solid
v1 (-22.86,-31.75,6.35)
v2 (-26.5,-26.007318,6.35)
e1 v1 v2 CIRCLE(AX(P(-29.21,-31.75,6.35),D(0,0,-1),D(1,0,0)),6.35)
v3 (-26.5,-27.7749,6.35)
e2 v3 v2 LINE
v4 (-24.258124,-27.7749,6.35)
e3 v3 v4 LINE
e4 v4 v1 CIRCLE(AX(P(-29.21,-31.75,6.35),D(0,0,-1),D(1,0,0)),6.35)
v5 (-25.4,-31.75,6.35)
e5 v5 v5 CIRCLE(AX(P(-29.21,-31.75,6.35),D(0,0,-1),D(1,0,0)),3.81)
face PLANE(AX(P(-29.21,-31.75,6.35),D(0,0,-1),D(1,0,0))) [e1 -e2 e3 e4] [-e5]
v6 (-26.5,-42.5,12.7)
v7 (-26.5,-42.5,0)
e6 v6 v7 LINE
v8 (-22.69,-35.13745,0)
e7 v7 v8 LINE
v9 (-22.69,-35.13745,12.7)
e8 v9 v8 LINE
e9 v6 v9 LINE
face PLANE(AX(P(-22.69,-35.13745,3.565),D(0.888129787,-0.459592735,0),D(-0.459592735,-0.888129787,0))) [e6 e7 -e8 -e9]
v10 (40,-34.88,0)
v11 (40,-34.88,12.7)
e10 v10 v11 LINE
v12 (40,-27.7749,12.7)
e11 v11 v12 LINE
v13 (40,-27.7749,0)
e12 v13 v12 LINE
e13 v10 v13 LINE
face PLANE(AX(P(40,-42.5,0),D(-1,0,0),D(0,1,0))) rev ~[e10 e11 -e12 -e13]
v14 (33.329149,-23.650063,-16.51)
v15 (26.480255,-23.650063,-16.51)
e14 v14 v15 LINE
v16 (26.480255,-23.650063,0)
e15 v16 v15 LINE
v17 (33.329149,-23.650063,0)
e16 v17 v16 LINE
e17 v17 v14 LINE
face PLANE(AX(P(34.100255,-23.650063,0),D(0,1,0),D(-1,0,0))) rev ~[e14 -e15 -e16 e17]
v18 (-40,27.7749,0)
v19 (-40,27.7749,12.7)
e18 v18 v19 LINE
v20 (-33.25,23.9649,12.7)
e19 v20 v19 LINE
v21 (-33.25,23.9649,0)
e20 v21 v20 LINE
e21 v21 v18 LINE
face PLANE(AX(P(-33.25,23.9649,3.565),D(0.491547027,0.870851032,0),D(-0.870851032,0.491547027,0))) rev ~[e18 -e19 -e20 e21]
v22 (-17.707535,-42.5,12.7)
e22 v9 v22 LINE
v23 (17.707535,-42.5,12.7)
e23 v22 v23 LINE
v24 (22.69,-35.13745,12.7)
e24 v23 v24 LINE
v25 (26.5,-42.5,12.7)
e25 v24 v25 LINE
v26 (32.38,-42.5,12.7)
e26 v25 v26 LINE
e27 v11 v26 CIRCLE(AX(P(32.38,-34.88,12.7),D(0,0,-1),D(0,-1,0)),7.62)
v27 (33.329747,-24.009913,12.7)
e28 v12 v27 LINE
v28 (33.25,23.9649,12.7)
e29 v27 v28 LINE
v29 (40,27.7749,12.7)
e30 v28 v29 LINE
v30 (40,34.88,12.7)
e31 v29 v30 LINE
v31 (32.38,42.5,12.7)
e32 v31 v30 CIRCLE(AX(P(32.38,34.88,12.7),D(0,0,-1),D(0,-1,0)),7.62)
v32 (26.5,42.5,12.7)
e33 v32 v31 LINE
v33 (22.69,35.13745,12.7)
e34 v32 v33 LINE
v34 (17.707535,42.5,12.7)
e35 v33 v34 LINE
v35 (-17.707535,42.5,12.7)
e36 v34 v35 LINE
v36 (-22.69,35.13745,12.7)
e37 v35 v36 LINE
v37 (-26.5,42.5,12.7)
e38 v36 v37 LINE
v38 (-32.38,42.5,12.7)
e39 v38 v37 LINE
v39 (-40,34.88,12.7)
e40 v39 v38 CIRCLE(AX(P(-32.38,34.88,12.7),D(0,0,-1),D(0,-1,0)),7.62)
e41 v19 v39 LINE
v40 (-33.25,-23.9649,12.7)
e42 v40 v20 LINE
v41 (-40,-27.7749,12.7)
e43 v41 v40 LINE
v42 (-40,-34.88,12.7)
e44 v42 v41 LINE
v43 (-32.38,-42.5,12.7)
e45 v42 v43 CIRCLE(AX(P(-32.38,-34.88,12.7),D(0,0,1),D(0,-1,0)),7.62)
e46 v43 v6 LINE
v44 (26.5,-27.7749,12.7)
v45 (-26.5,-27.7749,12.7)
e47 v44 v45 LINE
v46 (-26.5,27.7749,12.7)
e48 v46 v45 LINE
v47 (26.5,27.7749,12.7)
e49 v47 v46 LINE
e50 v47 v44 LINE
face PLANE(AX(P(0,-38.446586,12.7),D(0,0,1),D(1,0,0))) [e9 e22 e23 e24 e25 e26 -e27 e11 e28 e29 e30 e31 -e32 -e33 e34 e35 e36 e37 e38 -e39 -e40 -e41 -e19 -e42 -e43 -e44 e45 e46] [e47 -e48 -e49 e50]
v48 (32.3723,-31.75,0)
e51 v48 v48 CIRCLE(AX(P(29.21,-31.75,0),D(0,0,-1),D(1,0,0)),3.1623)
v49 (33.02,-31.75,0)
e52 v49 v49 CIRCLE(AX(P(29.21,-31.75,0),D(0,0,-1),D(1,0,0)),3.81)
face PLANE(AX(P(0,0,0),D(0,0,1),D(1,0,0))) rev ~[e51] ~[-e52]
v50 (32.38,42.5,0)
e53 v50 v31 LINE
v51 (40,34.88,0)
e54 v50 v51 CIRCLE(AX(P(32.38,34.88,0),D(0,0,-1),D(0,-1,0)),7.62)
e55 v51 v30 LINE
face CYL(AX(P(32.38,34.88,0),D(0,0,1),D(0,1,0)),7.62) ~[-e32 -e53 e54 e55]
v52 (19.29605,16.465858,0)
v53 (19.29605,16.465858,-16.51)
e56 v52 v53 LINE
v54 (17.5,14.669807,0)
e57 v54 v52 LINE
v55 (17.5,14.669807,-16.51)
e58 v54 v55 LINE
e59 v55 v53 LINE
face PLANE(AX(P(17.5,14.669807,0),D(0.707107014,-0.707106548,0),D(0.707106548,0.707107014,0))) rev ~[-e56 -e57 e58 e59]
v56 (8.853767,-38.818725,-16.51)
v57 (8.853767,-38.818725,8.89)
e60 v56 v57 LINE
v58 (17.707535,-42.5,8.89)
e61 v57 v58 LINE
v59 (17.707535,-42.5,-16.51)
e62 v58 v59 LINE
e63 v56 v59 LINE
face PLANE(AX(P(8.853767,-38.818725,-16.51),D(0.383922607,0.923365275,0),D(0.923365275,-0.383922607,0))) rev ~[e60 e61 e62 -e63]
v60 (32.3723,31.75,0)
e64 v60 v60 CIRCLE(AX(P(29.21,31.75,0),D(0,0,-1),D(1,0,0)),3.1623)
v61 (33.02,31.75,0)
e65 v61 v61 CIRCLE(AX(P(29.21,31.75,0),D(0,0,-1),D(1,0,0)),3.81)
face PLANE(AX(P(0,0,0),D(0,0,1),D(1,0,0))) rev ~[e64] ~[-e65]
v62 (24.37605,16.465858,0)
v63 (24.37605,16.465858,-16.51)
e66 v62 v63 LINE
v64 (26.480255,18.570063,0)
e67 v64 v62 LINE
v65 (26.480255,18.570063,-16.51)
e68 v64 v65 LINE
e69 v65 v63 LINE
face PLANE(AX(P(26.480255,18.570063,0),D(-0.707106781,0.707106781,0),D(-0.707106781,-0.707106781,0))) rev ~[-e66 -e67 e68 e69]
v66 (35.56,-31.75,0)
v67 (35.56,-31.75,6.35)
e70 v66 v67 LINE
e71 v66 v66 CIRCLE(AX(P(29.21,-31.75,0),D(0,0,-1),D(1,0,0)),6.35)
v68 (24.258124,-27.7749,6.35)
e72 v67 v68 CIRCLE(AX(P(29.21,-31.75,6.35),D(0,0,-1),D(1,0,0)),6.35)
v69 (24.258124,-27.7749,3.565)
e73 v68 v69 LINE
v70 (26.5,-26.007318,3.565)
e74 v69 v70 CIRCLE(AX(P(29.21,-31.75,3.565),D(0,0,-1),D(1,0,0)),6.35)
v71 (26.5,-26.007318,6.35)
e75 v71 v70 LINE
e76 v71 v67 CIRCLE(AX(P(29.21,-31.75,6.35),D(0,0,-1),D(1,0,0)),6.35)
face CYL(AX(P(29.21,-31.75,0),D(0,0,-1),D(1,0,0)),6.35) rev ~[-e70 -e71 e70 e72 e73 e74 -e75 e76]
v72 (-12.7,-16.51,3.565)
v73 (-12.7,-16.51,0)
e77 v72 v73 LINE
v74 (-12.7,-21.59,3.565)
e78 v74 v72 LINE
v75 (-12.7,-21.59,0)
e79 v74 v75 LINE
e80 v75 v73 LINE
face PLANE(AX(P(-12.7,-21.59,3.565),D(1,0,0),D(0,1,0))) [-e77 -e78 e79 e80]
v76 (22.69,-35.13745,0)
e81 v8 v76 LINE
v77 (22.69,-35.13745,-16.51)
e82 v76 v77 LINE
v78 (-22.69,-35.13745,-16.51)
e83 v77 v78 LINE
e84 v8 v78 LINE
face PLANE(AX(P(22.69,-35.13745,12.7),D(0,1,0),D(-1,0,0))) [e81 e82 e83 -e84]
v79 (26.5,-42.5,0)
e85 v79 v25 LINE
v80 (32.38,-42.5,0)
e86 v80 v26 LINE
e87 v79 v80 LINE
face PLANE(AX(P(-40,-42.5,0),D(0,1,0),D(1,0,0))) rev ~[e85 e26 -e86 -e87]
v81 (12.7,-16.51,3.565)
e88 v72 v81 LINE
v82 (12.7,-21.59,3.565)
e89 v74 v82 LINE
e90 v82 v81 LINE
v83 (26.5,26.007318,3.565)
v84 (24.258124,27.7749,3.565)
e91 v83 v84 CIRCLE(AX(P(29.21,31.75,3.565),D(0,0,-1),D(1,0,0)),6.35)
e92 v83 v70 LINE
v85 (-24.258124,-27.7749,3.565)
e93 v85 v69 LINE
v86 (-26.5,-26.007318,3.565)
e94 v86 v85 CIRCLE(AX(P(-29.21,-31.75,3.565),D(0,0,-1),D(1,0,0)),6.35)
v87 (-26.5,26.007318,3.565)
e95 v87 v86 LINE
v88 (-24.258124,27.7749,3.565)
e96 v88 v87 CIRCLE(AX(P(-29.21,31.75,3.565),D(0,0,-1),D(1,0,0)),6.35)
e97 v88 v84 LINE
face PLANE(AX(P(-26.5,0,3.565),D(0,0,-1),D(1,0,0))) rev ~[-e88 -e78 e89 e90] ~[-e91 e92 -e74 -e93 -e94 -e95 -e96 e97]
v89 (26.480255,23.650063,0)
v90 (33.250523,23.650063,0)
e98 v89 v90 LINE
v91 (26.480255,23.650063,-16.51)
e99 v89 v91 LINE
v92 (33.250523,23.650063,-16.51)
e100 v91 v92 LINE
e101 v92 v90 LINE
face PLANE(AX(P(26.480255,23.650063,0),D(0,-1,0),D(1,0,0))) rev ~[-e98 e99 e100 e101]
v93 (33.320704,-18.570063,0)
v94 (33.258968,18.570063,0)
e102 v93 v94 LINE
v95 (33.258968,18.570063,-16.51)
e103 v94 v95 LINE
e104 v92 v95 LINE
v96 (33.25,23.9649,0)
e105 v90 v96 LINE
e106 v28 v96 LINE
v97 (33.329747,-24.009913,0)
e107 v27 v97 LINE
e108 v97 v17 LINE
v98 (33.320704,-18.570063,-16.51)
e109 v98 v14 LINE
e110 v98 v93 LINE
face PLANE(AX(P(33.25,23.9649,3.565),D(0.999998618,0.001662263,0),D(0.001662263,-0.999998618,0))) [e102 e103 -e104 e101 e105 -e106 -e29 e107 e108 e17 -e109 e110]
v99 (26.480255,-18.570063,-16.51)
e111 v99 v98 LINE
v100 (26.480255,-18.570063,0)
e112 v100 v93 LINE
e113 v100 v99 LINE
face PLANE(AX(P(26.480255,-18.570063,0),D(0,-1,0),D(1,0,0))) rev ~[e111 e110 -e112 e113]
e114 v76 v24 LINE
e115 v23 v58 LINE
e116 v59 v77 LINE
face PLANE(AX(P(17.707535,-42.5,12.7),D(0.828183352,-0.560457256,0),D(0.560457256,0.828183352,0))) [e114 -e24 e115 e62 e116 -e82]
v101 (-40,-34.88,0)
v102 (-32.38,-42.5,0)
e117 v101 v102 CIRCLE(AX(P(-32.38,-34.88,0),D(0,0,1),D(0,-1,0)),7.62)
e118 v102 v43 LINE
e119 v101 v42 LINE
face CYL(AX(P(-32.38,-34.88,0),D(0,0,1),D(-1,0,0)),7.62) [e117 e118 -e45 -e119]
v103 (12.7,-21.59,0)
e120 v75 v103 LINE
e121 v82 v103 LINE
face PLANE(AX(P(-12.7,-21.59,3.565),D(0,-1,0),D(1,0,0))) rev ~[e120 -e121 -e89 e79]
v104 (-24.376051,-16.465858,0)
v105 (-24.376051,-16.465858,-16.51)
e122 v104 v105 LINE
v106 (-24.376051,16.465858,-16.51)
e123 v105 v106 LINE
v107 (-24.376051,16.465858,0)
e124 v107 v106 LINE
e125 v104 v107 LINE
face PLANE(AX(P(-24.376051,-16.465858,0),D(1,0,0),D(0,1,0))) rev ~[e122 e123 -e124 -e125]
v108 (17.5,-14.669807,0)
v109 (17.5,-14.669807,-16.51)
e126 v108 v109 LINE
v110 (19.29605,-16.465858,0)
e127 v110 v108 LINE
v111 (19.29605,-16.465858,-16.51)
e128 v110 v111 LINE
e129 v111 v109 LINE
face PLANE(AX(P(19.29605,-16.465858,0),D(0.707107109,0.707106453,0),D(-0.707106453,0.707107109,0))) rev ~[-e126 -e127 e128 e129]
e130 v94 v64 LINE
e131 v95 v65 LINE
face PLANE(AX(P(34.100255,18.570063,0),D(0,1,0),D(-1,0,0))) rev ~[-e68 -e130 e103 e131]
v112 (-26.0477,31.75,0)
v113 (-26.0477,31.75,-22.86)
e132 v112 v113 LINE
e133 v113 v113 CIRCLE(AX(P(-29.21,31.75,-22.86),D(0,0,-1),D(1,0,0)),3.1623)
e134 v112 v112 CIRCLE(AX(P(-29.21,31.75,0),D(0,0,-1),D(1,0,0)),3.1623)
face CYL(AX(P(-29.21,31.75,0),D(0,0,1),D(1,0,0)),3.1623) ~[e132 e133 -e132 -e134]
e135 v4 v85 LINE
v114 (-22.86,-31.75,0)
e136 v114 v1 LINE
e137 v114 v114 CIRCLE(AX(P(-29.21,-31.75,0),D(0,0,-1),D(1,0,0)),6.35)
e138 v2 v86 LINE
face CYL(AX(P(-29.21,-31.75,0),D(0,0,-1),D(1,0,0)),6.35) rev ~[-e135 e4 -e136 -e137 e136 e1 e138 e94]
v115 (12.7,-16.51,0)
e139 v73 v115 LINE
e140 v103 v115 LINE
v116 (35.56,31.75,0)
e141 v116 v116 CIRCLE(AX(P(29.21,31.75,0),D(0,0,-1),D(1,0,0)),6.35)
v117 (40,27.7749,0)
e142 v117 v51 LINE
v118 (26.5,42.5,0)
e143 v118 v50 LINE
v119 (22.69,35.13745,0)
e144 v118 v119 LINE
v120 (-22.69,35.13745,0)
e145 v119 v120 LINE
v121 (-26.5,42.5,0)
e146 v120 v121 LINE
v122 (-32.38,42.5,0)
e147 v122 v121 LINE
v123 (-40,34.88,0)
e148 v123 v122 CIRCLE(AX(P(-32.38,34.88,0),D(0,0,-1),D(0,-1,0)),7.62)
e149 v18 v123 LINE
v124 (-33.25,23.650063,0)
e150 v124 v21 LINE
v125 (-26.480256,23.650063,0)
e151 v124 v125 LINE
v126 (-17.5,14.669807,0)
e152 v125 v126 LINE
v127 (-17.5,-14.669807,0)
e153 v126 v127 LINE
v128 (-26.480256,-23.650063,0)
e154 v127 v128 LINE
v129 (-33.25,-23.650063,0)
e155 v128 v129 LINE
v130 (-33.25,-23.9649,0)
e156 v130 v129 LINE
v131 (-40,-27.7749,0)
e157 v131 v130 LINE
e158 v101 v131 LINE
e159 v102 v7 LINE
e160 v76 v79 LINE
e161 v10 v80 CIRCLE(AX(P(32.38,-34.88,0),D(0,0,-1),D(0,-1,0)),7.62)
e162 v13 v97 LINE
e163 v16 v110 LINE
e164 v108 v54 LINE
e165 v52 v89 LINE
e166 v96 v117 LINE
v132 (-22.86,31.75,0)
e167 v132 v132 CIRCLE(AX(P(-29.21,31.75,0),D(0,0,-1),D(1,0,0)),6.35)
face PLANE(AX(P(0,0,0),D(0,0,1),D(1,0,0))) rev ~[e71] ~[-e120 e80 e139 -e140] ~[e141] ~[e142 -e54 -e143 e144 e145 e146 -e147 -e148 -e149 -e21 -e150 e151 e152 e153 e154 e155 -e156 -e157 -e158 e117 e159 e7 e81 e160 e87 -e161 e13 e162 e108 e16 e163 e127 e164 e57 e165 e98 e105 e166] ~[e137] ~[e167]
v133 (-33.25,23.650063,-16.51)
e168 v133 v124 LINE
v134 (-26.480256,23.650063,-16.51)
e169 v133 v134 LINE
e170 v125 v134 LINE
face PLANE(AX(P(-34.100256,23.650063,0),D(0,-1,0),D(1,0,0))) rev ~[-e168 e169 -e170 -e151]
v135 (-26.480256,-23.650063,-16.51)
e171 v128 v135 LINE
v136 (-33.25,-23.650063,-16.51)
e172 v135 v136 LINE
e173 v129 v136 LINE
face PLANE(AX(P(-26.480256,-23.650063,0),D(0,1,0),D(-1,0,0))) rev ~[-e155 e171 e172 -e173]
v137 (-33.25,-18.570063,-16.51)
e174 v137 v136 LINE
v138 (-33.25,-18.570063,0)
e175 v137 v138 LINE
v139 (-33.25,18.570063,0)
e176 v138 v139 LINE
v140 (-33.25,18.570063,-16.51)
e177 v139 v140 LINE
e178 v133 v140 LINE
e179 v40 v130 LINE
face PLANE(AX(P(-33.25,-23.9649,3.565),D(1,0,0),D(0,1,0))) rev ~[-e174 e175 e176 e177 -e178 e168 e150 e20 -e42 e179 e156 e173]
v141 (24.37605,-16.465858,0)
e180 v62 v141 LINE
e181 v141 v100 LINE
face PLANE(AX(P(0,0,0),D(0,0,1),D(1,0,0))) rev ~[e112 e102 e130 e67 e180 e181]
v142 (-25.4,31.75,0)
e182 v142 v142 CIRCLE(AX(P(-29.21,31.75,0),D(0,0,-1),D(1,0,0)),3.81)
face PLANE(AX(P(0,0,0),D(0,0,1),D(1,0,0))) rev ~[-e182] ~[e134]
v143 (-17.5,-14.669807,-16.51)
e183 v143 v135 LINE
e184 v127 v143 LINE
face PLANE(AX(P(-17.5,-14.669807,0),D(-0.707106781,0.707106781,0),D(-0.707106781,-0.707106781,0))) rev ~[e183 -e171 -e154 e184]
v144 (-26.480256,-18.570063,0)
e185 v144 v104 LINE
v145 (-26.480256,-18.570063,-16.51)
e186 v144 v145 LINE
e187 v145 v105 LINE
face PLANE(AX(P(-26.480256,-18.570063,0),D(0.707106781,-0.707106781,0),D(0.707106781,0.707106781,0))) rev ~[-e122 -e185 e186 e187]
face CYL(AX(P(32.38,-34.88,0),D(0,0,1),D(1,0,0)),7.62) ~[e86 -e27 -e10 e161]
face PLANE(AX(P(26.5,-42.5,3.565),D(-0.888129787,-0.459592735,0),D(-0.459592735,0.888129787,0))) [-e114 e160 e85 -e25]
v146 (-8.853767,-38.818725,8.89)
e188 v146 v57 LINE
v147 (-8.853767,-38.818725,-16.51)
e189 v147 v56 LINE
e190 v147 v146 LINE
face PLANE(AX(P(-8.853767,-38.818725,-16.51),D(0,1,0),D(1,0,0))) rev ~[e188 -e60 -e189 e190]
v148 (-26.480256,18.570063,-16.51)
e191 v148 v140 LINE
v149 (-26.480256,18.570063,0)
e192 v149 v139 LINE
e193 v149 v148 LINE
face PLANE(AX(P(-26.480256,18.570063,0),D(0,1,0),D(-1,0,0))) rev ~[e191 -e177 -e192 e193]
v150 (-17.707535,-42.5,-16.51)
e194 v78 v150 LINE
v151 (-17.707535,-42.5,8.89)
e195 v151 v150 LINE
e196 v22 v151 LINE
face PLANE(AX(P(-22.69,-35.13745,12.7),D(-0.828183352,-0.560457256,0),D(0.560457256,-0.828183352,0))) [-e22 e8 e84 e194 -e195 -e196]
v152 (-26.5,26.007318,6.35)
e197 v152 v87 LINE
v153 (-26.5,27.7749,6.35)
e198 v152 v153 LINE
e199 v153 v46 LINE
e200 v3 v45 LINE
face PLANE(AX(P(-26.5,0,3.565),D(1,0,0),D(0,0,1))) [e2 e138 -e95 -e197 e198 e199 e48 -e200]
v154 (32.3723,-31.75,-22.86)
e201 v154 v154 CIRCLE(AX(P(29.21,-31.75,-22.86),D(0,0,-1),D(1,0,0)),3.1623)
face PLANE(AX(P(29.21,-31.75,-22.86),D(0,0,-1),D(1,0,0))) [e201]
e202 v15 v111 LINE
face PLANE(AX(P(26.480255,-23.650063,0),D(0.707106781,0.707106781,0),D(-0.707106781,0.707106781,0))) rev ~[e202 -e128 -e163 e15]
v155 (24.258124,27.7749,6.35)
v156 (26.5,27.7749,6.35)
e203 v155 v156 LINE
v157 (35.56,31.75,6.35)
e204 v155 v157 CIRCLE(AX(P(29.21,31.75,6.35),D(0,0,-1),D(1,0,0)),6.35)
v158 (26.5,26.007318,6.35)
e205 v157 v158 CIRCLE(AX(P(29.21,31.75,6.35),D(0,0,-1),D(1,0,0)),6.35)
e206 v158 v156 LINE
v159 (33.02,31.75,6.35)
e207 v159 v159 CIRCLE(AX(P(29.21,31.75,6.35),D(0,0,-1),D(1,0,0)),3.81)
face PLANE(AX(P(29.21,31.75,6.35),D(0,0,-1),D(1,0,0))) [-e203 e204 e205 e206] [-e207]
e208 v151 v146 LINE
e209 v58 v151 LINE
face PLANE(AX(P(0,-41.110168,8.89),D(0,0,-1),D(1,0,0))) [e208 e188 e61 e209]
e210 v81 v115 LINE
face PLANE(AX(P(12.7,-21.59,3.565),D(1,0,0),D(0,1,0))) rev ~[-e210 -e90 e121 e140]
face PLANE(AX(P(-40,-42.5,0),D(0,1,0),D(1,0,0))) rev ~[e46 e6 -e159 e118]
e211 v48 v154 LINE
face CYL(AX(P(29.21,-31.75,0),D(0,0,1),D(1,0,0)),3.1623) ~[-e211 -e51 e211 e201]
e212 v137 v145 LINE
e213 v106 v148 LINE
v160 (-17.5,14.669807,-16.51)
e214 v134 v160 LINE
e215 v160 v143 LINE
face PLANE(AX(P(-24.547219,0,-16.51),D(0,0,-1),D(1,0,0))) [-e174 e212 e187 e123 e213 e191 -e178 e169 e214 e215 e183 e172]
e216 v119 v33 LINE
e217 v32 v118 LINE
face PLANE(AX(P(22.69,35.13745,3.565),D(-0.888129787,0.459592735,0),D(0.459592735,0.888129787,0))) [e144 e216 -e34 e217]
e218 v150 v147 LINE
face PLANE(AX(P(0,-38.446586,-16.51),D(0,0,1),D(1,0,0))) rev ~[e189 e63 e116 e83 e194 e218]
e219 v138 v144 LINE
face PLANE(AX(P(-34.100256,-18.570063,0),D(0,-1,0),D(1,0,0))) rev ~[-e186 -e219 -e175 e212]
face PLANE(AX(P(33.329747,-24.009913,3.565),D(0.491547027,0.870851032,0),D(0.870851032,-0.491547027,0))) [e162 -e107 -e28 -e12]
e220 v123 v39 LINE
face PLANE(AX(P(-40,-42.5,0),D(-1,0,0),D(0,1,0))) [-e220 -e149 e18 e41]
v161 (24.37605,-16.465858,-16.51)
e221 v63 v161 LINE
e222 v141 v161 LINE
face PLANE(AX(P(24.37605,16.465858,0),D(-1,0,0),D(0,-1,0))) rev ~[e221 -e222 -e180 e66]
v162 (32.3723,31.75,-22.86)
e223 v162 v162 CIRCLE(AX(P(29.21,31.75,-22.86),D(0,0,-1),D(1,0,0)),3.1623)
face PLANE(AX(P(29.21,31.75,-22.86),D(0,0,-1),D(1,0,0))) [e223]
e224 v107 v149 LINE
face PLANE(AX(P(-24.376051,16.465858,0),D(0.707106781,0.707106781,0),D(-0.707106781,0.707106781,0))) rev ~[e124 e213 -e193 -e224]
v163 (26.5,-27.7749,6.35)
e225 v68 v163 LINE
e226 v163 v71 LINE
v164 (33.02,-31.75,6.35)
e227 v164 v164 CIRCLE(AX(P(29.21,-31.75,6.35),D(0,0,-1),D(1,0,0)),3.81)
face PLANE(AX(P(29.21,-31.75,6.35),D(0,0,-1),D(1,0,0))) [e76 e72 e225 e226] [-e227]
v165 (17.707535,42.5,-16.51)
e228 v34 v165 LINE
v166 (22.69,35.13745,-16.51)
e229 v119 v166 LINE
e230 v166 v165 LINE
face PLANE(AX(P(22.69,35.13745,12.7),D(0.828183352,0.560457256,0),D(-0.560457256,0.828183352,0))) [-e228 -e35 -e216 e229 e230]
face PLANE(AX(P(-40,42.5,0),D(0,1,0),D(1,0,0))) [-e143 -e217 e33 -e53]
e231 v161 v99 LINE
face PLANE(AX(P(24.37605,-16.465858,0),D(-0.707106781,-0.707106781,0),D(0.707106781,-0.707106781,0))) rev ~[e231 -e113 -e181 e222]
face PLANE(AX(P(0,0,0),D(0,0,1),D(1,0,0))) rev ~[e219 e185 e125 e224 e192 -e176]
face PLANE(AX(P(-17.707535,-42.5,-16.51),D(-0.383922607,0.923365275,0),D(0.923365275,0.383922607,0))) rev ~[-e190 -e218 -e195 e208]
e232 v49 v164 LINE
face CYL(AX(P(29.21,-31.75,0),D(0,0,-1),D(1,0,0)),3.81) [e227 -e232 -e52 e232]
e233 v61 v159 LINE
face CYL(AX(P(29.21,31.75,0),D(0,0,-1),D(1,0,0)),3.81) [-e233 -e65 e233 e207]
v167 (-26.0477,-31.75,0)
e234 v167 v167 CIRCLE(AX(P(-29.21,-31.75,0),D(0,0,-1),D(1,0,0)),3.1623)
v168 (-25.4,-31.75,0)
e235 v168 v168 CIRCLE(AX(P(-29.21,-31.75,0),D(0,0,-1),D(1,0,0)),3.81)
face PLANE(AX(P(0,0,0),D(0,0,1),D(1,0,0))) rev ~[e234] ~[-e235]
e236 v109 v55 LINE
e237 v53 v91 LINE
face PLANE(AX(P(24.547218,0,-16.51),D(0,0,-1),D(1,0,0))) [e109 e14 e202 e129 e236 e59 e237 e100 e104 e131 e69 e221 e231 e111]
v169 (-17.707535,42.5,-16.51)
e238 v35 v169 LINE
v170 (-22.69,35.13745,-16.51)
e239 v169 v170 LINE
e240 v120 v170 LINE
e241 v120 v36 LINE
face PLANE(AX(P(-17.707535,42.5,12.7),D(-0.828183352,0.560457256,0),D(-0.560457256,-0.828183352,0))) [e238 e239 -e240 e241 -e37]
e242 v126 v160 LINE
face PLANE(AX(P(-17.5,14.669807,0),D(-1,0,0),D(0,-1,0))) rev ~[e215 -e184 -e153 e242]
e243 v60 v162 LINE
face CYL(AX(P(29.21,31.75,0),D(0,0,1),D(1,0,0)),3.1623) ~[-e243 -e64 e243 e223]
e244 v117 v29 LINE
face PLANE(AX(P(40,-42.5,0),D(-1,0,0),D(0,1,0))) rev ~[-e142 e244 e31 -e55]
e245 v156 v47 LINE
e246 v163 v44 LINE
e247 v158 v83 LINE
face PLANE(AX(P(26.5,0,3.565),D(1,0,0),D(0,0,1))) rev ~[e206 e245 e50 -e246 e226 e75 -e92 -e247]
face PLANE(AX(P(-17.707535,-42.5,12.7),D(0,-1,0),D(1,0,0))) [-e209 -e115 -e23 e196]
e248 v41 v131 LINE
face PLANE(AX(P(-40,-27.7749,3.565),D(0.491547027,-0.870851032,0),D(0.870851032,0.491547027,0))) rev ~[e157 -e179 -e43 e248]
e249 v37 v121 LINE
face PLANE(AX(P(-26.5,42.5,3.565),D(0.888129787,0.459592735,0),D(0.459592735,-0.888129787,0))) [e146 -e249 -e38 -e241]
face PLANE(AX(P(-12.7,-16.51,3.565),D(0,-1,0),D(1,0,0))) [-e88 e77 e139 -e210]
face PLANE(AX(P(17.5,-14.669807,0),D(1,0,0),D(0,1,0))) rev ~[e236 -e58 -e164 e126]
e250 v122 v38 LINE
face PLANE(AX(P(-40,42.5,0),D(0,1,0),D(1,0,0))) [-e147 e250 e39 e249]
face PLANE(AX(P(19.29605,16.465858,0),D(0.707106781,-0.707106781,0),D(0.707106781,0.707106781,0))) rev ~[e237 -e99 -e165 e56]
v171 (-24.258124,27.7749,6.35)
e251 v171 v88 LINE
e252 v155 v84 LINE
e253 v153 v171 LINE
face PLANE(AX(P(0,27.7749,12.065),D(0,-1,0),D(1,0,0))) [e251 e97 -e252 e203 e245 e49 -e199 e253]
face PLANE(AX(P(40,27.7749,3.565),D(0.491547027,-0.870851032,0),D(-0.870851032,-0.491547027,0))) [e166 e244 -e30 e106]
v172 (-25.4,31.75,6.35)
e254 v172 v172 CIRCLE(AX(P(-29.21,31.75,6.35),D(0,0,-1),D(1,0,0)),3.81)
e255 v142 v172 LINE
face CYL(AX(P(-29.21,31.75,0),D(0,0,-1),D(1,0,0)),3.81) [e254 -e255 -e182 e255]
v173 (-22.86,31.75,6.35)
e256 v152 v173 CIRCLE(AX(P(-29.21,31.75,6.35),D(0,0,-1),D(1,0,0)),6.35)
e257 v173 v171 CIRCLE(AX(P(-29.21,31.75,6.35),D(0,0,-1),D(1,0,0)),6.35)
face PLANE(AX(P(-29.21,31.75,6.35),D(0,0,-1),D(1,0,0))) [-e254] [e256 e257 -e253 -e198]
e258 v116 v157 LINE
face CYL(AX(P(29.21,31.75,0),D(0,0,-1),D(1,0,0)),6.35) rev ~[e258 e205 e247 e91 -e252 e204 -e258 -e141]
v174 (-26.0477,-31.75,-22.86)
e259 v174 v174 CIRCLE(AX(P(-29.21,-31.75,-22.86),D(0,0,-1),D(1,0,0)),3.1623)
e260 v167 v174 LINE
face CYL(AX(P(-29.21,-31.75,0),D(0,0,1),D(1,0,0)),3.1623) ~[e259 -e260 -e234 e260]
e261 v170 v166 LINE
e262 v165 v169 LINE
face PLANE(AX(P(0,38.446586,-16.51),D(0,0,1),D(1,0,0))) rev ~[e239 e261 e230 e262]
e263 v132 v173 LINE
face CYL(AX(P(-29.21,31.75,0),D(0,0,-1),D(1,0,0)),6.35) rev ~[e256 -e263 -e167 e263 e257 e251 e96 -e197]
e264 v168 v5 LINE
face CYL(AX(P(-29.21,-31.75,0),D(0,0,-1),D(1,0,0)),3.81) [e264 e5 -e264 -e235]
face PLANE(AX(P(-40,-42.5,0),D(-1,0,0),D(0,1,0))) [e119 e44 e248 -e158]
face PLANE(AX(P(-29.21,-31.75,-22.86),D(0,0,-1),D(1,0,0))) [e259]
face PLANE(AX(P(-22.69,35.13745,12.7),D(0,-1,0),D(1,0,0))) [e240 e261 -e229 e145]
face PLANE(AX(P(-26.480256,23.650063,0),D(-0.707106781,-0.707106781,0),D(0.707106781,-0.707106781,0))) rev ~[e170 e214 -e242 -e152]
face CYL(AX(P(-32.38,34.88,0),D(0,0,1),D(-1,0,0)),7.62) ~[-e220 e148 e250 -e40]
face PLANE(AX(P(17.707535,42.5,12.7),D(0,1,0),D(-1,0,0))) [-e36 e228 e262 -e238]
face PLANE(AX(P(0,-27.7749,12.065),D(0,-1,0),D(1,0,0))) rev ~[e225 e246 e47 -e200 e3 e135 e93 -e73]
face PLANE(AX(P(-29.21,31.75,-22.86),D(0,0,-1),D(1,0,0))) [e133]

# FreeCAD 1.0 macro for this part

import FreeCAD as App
import Part
import Sketcher

V = App.Vector
Q = App.Units.Quantity


def edges_at(feature, points):
    """Names of the edges that pass closest to the given points."""
    edges = feature.Shape.Edges
    near = lambda p: min(range(len(edges)), key=lambda i: edges[i].distToShape(Part.Vertex(*p))[0])
    return sorted({f"Edge{near(p) + 1}" for p in points})

doc = App.newDocument("Part")
body = doc.addObject("PartDesign::Body", "Body")

sketch1 = body.newObject("Sketcher::SketchObject", "Sketch")
sketch1.AttachmentSupport = (doc.getObject("XY_Plane"), [""])
sketch1.MapMode = "FlatFace"
sketch1.addGeometry(Part.LineSegment(V(-40, 42, 0), V(-40, -42, 0)), False)
sketch1.addGeometry(Part.LineSegment(V(-40, -42, 0), V(40, -42, 0)), False)
sketch1.addGeometry(Part.LineSegment(V(40, -42, 0), V(40, 42, 0)), False)
sketch1.addGeometry(Part.LineSegment(V(40, 42, 0), V(-40, 42, 0)), False)
sketch1.addConstraint(Sketcher.Constraint("Coincident", 0, 2, 1, 1))
sketch1.addConstraint(Sketcher.Constraint("Coincident", 1, 2, 2, 1))
sketch1.addConstraint(Sketcher.Constraint("Coincident", 2, 2, 3, 1))
sketch1.addConstraint(Sketcher.Constraint("Coincident", 3, 2, 0, 1))
sketch1.addConstraint(Sketcher.Constraint("Vertical", 0))
sketch1.addConstraint(Sketcher.Constraint("Horizontal", 1))
sketch1.addConstraint(Sketcher.Constraint("Vertical", 2))
sketch1.addConstraint(Sketcher.Constraint("Horizontal", 3))
sketch1.addConstraint(Sketcher.Constraint("Symmetric", 0, 2, 2, 2, -1, 1))
sketch1.addConstraint(Sketcher.Constraint("DistanceX", 1, 1, 1, 2, 80.0))
sketch1.addConstraint(Sketcher.Constraint("DistanceY", 0, 2, 0, 1, 85.0))
pad1 = body.newObject("PartDesign::Pad", "Pad")
pad1.Profile = sketch1
pad1.Length = Q("1 in")

sketch2 = body.newObject("Sketcher::SketchObject", "Sketch001")
sketch2.AttachmentSupport = (doc.getObject("XZ_Plane"), [""])
sketch2.MapMode = "FlatFace"
sketch2.addGeometry(Part.LineSegment(V(-26, 21, 0), V(-26, 4, 0)), False)
sketch2.addGeometry(Part.LineSegment(V(-26, 4, 0), V(26, 4, 0)), False)
sketch2.addGeometry(Part.LineSegment(V(26, 4, 0), V(26, 21, 0)), False)
sketch2.addGeometry(Part.LineSegment(V(26, 21, 0), V(-26, 21, 0)), False)
sketch2.addConstraint(Sketcher.Constraint("Coincident", 0, 2, 1, 1))
sketch2.addConstraint(Sketcher.Constraint("Coincident", 1, 2, 2, 1))
sketch2.addConstraint(Sketcher.Constraint("Coincident", 2, 2, 3, 1))
sketch2.addConstraint(Sketcher.Constraint("Coincident", 3, 2, 0, 1))
sketch2.addConstraint(Sketcher.Constraint("Vertical", 0))
sketch2.addConstraint(Sketcher.Constraint("Horizontal", 1))
sketch2.addConstraint(Sketcher.Constraint("Vertical", 2))
sketch2.addConstraint(Sketcher.Constraint("Horizontal", 3))
sketch2.addConstraint(Sketcher.Constraint("DistanceX", 1, 1, 1, 2, 53.0))
sketch2.addConstraint(Sketcher.Constraint("DistanceY", 0, 2, 0, 1, 17.0))
sketch2.addConstraint(Sketcher.Constraint("DistanceX", 0, 2, -1, 1, 26.5))
sketch2.addConstraint(Sketcher.Constraint("DistanceY", -1, 1, 0, 2, 3.565))
pocket1 = body.newObject("PartDesign::Pocket", "Pocket")
pocket1.Profile = sketch2
pocket1.Length = Q("2.187 in")
pocket1.Midplane = True

sketch3 = body.newObject("Sketcher::SketchObject", "Sketch002")
sketch3.AttachmentSupport = (doc.getObject("XY_Plane"), [""])
sketch3.MapMode = "FlatFace"
sketch3.AttachmentOffset = App.Placement(V(0, 0, 1 * 25.4), App.Rotation())
sketch3.addGeometry(Part.LineSegment(V(-40, 42, 0), V(-40, -42, 0)), False)
sketch3.addGeometry(Part.LineSegment(V(-40, -42, 0), V(40, -42, 0)), False)
sketch3.addGeometry(Part.LineSegment(V(40, -42, 0), V(40, 42, 0)), False)
sketch3.addGeometry(Part.LineSegment(V(40, 42, 0), V(-40, 42, 0)), False)
sketch3.addConstraint(Sketcher.Constraint("Coincident", 0, 2, 1, 1))
sketch3.addConstraint(Sketcher.Constraint("Coincident", 1, 2, 2, 1))
sketch3.addConstraint(Sketcher.Constraint("Coincident", 2, 2, 3, 1))
sketch3.addConstraint(Sketcher.Constraint("Coincident", 3, 2, 0, 1))
sketch3.addConstraint(Sketcher.Constraint("Vertical", 0))
sketch3.addConstraint(Sketcher.Constraint("Horizontal", 1))
sketch3.addConstraint(Sketcher.Constraint("Vertical", 2))
sketch3.addConstraint(Sketcher.Constraint("Horizontal", 3))
sketch3.addConstraint(Sketcher.Constraint("Symmetric", 0, 2, 2, 2, -1, 1))
sketch3.addConstraint(Sketcher.Constraint("DistanceX", 1, 1, 1, 2, 80.0))
sketch3.addConstraint(Sketcher.Constraint("DistanceY", 0, 2, 0, 1, 85.0))
pocket2 = body.newObject("PartDesign::Pocket", "Pocket001")
pocket2.Profile = sketch3
pocket2.Length = Q("0.5 in")

sketch4 = body.newObject("Sketcher::SketchObject", "Sketch003")
sketch4.AttachmentSupport = (doc.getObject("XY_Plane"), [""])
sketch4.MapMode = "FlatFace"
sketch4.addGeometry(Part.Circle(V(-29.2, -31.8, 0), V(0, 0, 1), 3.2), False)
sketch4.addGeometry(Part.Circle(V(29.2, -31.8, 0), V(0, 0, 1), 3.2), False)
sketch4.addGeometry(Part.Circle(V(29.2, 31.8, 0), V(0, 0, 1), 3.2), False)
sketch4.addGeometry(Part.Circle(V(-29.2, 31.8, 0), V(0, 0, 1), 3.2), False)
sketch4.addConstraint(Sketcher.Constraint("Equal", 0, 1))
sketch4.addConstraint(Sketcher.Constraint("Equal", 1, 2))
sketch4.addConstraint(Sketcher.Constraint("Equal", 2, 3))
sketch4.addConstraint(Sketcher.Constraint("Symmetric", 0, 3, 2, 3, -1, 1))
sketch4.addConstraint(Sketcher.Constraint("Symmetric", 1, 3, 3, 3, -1, 1))
sketch4.addConstraint(Sketcher.Constraint("Symmetric", 0, 3, 1, 3, -2))
sketch4.addConstraint(Sketcher.Constraint("Diameter", 0, Q("0.249 in")))
sketch4.addConstraint(Sketcher.Constraint("DistanceX", 0, 3, 1, 3, Q("2.3 in")))
sketch4.addConstraint(Sketcher.Constraint("DistanceY", 1, 3, 2, 3, Q("2.5 in")))
pad2 = body.newObject("PartDesign::Pad", "Pad001")
pad2.Profile = sketch4
pad2.Length = Q("0.9 in")
pad2.Reversed = True

sketch5 = body.newObject("Sketcher::SketchObject", "Sketch004")
sketch5.AttachmentSupport = (doc.getObject("XY_Plane"), [""])
sketch5.MapMode = "FlatFace"
sketch5.AttachmentOffset = App.Placement(V(0, 0, 3.565), App.Rotation())
sketch5.addGeometry(Part.LineSegment(V(-13, -17, 0), V(-13, -22, 0)), False)
sketch5.addGeometry(Part.LineSegment(V(-13, -22, 0), V(13, -22, 0)), False)
sketch5.addGeometry(Part.LineSegment(V(13, -22, 0), V(13, -17, 0)), False)
sketch5.addGeometry(Part.LineSegment(V(13, -17, 0), V(-13, -17, 0)), False)
sketch5.addConstraint(Sketcher.Constraint("Coincident", 0, 2, 1, 1))
sketch5.addConstraint(Sketcher.Constraint("Coincident", 1, 2, 2, 1))
sketch5.addConstraint(Sketcher.Constraint("Coincident", 2, 2, 3, 1))
sketch5.addConstraint(Sketcher.Constraint("Coincident", 3, 2, 0, 1))
sketch5.addConstraint(Sketcher.Constraint("Vertical", 0))
sketch5.addConstraint(Sketcher.Constraint("Horizontal", 1))
sketch5.addConstraint(Sketcher.Constraint("Vertical", 2))
sketch5.addConstraint(Sketcher.Constraint("Horizontal", 3))
sketch5.addConstraint(Sketcher.Constraint("DistanceX", 1, 1, 1, 2, Q("1 in")))
sketch5.addConstraint(Sketcher.Constraint("DistanceY", 0, 2, 0, 1, Q("0.2 in")))
sketch5.addConstraint(Sketcher.Constraint("DistanceX", 0, 2, -1, 1, Q("0.5 in")))
sketch5.addConstraint(Sketcher.Constraint("DistanceY", 0, 2, -1, 1, Q("0.85 in")))
pocket3 = body.newObject("PartDesign::Pocket", "Pocket002")
pocket3.Profile = sketch5
pocket3.Length = Q("1 in")
doc.recompute()

fillet = body.newObject("PartDesign::Fillet", "Fillet")
fillet.Base = (pocket3, edges_at(pocket3, [(-40, -42.5, 6.35)]))
fillet.Radius = Q("0.3 in")
doc.recompute()

fillet2 = body.newObject("PartDesign::Fillet", "Fillet001")
fillet2.Base = (fillet, edges_at(fillet, [(-40, 42.5, 6.35)]))
fillet2.Radius = Q("0.3 in")
doc.recompute()

fillet3 = body.newObject("PartDesign::Fillet", "Fillet002")
fillet3.Base = (fillet2, edges_at(fillet2, [(40, 42.5, 6.35)]))
fillet3.Radius = Q("0.3 in")
doc.recompute()

fillet4 = body.newObject("PartDesign::Fillet", "Fillet003")
fillet4.Base = (fillet3, edges_at(fillet3, [(40, -42.5, 6.35)]))
fillet4.Radius = Q("0.3 in")

sketch6 = body.newObject("Sketcher::SketchObject", "Sketch005")
sketch6.AttachmentSupport = (doc.getObject("XY_Plane"), [""])
sketch6.MapMode = "FlatFace"
sketch6.addGeometry(Part.LineSegment(V(-26.5, -23.7, 0), V(-34.1, -23.7, 0)), False)
sketch6.addGeometry(Part.LineSegment(V(-34.1, -23.7, 0), V(-34.1, -18.6, 0)), False)
sketch6.addGeometry(Part.LineSegment(V(-34.1, -18.6, 0), V(-26.5, -18.6, 0)), False)
sketch6.addGeometry(Part.LineSegment(V(-26.5, -18.6, 0), V(-24.4, -16.5, 0)), False)
sketch6.addGeometry(Part.LineSegment(V(-24.4, -16.5, 0), V(-24.4, 16.5, 0)), False)
sketch6.addGeometry(Part.LineSegment(V(-24.4, 16.5, 0), V(-26.5, 18.6, 0)), False)
sketch6.addGeometry(Part.LineSegment(V(-26.5, 18.6, 0), V(-34.1, 18.6, 0)), False)
sketch6.addGeometry(Part.LineSegment(V(-34.1, 18.6, 0), V(-34.1, 23.7, 0)), False)
sketch6.addGeometry(Part.LineSegment(V(-34.1, 23.7, 0), V(-26.5, 23.7, 0)), False)
sketch6.addGeometry(Part.LineSegment(V(-26.5, 23.7, 0), V(-17.5, 14.7, 0)), False)
sketch6.addGeometry(Part.LineSegment(V(-17.5, 14.7, 0), V(-17.5, -14.7, 0)), False)
sketch6.addGeometry(Part.LineSegment(V(-17.5, -14.7, 0), V(-26.5, -23.7, 0)), False)
sketch6.addGeometry(Part.LineSegment(V(19.3, 16.5, 0), V(26.5, 23.7, 0)), False)
sketch6.addGeometry(Part.LineSegment(V(26.5, 23.7, 0), V(34.1, 23.7, 0)), False)
sketch6.addGeometry(Part.LineSegment(V(34.1, 23.7, 0), V(34.1, 18.6, 0)), False)
sketch6.addGeometry(Part.LineSegment(V(34.1, 18.6, 0), V(26.5, 18.6, 0)), False)
sketch6.addGeometry(Part.LineSegment(V(26.5, 18.6, 0), V(24.4, 16.5, 0)), False)
sketch6.addGeometry(Part.LineSegment(V(24.4, 16.5, 0), V(24.4, -16.5, 0)), False)
sketch6.addGeometry(Part.LineSegment(V(24.4, -16.5, 0), V(26.5, -18.6, 0)), False)
sketch6.addGeometry(Part.LineSegment(V(26.5, -18.6, 0), V(34.1, -18.6, 0)), False)
sketch6.addGeometry(Part.LineSegment(V(34.1, -18.6, 0), V(34.1, -23.7, 0)), False)
sketch6.addGeometry(Part.LineSegment(V(34.1, -23.7, 0), V(26.5, -23.7, 0)), False)
sketch6.addGeometry(Part.LineSegment(V(26.5, -23.7, 0), V(19.3, -16.5, 0)), False)
sketch6.addGeometry(Part.LineSegment(V(19.3, -16.5, 0), V(17.5, -14.7, 0)), False)
sketch6.addGeometry(Part.LineSegment(V(17.5, -14.7, 0), V(17.5, 14.7, 0)), False)
sketch6.addGeometry(Part.LineSegment(V(17.5, 14.7, 0), V(19.3, 16.5, 0)), False)
sketch6.addConstraint(Sketcher.Constraint("Coincident", 0, 2, 1, 1))
sketch6.addConstraint(Sketcher.Constraint("Coincident", 1, 2, 2, 1))
sketch6.addConstraint(Sketcher.Constraint("Coincident", 2, 2, 3, 1))
sketch6.addConstraint(Sketcher.Constraint("Coincident", 3, 2, 4, 1))
sketch6.addConstraint(Sketcher.Constraint("Coincident", 4, 2, 5, 1))
sketch6.addConstraint(Sketcher.Constraint("Coincident", 5, 2, 6, 1))
sketch6.addConstraint(Sketcher.Constraint("Coincident", 6, 2, 7, 1))
sketch6.addConstraint(Sketcher.Constraint("Coincident", 7, 2, 8, 1))
sketch6.addConstraint(Sketcher.Constraint("Coincident", 8, 2, 9, 1))
sketch6.addConstraint(Sketcher.Constraint("Coincident", 9, 2, 10, 1))
sketch6.addConstraint(Sketcher.Constraint("Coincident", 10, 2, 11, 1))
sketch6.addConstraint(Sketcher.Constraint("Coincident", 11, 2, 0, 1))
sketch6.addConstraint(Sketcher.Constraint("Coincident", 12, 2, 13, 1))
sketch6.addConstraint(Sketcher.Constraint("Coincident", 13, 2, 14, 1))
sketch6.addConstraint(Sketcher.Constraint("Coincident", 14, 2, 15, 1))
sketch6.addConstraint(Sketcher.Constraint("Coincident", 15, 2, 16, 1))
sketch6.addConstraint(Sketcher.Constraint("Coincident", 16, 2, 17, 1))
sketch6.addConstraint(Sketcher.Constraint("Coincident", 17, 2, 18, 1))
sketch6.addConstraint(Sketcher.Constraint("Coincident", 18, 2, 19, 1))
sketch6.addConstraint(Sketcher.Constraint("Coincident", 19, 2, 20, 1))
sketch6.addConstraint(Sketcher.Constraint("Coincident", 20, 2, 21, 1))
sketch6.addConstraint(Sketcher.Constraint("Coincident", 21, 2, 22, 1))
sketch6.addConstraint(Sketcher.Constraint("Coincident", 22, 2, 23, 1))
sketch6.addConstraint(Sketcher.Constraint("Coincident", 23, 2, 24, 1))
sketch6.addConstraint(Sketcher.Constraint("Coincident", 24, 2, 25, 1))
sketch6.addConstraint(Sketcher.Constraint("Coincident", 25, 2, 12, 1))
sketch6.addConstraint(Sketcher.Constraint("Horizontal", 0))
sketch6.addConstraint(Sketcher.Constraint("Vertical", 1))
sketch6.addConstraint(Sketcher.Constraint("Horizontal", 2))
sketch6.addConstraint(Sketcher.Constraint("Vertical", 4))
sketch6.addConstraint(Sketcher.Constraint("Horizontal", 6))
sketch6.addConstraint(Sketcher.Constraint("Vertical", 7))
sketch6.addConstraint(Sketcher.Constraint("Horizontal", 8))
sketch6.addConstraint(Sketcher.Constraint("Vertical", 10))
sketch6.addConstraint(Sketcher.Constraint("Horizontal", 13))
sketch6.addConstraint(Sketcher.Constraint("Vertical", 14))
sketch6.addConstraint(Sketcher.Constraint("Horizontal", 15))
sketch6.addConstraint(Sketcher.Constraint("Vertical", 17))
sketch6.addConstraint(Sketcher.Constraint("Horizontal", 19))
sketch6.addConstraint(Sketcher.Constraint("Vertical", 20))
sketch6.addConstraint(Sketcher.Constraint("Horizontal", 21))
sketch6.addConstraint(Sketcher.Constraint("Vertical", 24))
sketch6.addConstraint(Sketcher.Constraint("Symmetric", 11, 2, 12, 2, -1, 1))
sketch6.addConstraint(Sketcher.Constraint("Symmetric", 1, 2, 14, 2, -1, 1))
sketch6.addConstraint(Sketcher.Constraint("Symmetric", 3, 2, 16, 2, -1, 1))
sketch6.addConstraint(Sketcher.Constraint("Symmetric", 5, 2, 18, 2, -1, 1))
sketch6.addConstraint(Sketcher.Constraint("Symmetric", 7, 2, 20, 2, -1, 1))
sketch6.addConstraint(Sketcher.Constraint("Symmetric", 9, 2, 23, 2, -1, 1))
sketch6.addConstraint(Sketcher.Constraint("Symmetric", 8, 2, 12, 2, -2))
sketch6.addConstraint(Sketcher.Constraint("Symmetric", 6, 2, 14, 2, -2))
sketch6.addConstraint(Sketcher.Constraint("Symmetric", 22, 2, 25, 2, -1))
sketch6.addConstraint(Sketcher.Constraint("Perpendicular", 3, 5))
sketch6.addConstraint(Sketcher.Constraint("Parallel", 5, 9))
sketch6.addConstraint(Sketcher.Constraint("Perpendicular", 9, 11))
sketch6.addConstraint(Sketcher.Constraint("Parallel", 11, 12))
sketch6.addConstraint(Sketcher.Constraint("Parallel", 12, 16))
sketch6.addConstraint(Sketcher.Constraint("Perpendicular", 16, 18))
sketch6.addConstraint(Sketcher.Constraint("Parallel", 18, 22))
sketch6.addConstraint(Sketcher.Constraint("Parallel", 22, 23))
sketch6.addConstraint(Sketcher.Constraint("Perpendicular", 23, 25))
sketch6.addConstraint(Sketcher.Constraint("Horizontal", 4, 2, 16, 2))
sketch6.addConstraint(Sketcher.Constraint("Horizontal", 17, 2, 22, 2))
sketch6.addConstraint(Sketcher.Constraint("Vertical", 5, 2, 8, 2))
sketch6.addConstraint(Sketcher.Constraint("DistanceX", 0, 2, 0, 1, Q("0.3 in")))
sketch6.addConstraint(Sketcher.Constraint("DistanceY", 1, 1, 1, 2, Q("0.2 in")))
sketch6.addConstraint(Sketcher.Constraint("Distance", 9, Q("0.5 in")))
sketch6.addConstraint(Sketcher.Constraint("Distance", 12, Q("0.4 in")))
sketch6.addConstraint(Sketcher.Constraint("DistanceX", 9, 2, -1, 1, 17.5))
sketch6.addConstraint(Sketcher.Constraint("DistanceY", 4, 1, 4, 2, 32.931716))
pad3 = body.newObject("PartDesign::Pad", "Pad002")
pad3.Profile = sketch6
pad3.Length = Q("0.65 in")
pad3.Reversed = True

sketch7 = body.newObject("Sketcher::SketchObject", "Sketch006")
sketch7.AttachmentSupport = (doc.getObject("XY_Plane"), [""])
sketch7.MapMode = "FlatFace"
sketch7.addGeometry(Part.LineSegment(V(-18, -25, 0), V(-18, 25, 0)), False)
sketch7.addGeometry(Part.LineSegment(V(-18, 25, 0), V(18, 25, 0)), False)
sketch7.addGeometry(Part.LineSegment(V(18, 25, 0), V(18, -25, 0)), False)
sketch7.addGeometry(Part.LineSegment(V(18, -25, 0), V(-18, -25, 0)), False)
sketch7.addConstraint(Sketcher.Constraint("Coincident", 0, 2, 1, 1))
sketch7.addConstraint(Sketcher.Constraint("Coincident", 1, 2, 2, 1))
sketch7.addConstraint(Sketcher.Constraint("Coincident", 2, 2, 3, 1))
sketch7.addConstraint(Sketcher.Constraint("Coincident", 3, 2, 0, 1))
sketch7.addConstraint(Sketcher.Constraint("Vertical", 0))
sketch7.addConstraint(Sketcher.Constraint("Horizontal", 1))
sketch7.addConstraint(Sketcher.Constraint("Vertical", 2))
sketch7.addConstraint(Sketcher.Constraint("Horizontal", 3))
sketch7.addConstraint(Sketcher.Constraint("Symmetric", 0, 2, 2, 2, -1, 1))
sketch7.addConstraint(Sketcher.Constraint("DistanceY", 0, 1, 0, 2, Q("2 in")))
sketch7.addConstraint(Sketcher.Constraint("DistanceX", 1, 1, 1, 2, 35.0))
pocket4 = body.newObject("PartDesign::Pocket", "Pocket003")
pocket4.Profile = sketch7
pocket4.Length = Q("1 in")

sketch8 = body.newObject("Sketcher::SketchObject", "Sketch007")
sketch8.AttachmentSupport = (doc.getObject("XY_Plane"), [""])
sketch8.MapMode = "FlatFace"
sketch8.AttachmentOffset = App.Placement(V(0, 0, 3.565), App.Rotation())
sketch8.addGeometry(Part.LineSegment(V(-26, -42, 0), V(26, -42, 0)), False)
sketch8.addGeometry(Part.LineSegment(V(26, -42, 0), V(23, -35, 0)), False)
sketch8.addGeometry(Part.LineSegment(V(23, -35, 0), V(-23, -35, 0)), False)
sketch8.addGeometry(Part.LineSegment(V(-23, -35, 0), V(-26, -42, 0)), False)
sketch8.addGeometry(Part.LineSegment(V(33, -24, 0), V(40, -28, 0)), False)
sketch8.addGeometry(Part.LineSegment(V(40, -28, 0), V(40, 28, 0)), False)
sketch8.addGeometry(Part.LineSegment(V(40, 28, 0), V(33, 24, 0)), False)
sketch8.addGeometry(Part.LineSegment(V(33, 24, 0), V(33, -24, 0)), False)
sketch8.addGeometry(Part.LineSegment(V(-26, 42, 0), V(-23, 35, 0)), False)
sketch8.addGeometry(Part.LineSegment(V(-23, 35, 0), V(23, 35, 0)), False)
sketch8.addGeometry(Part.LineSegment(V(23, 35, 0), V(26, 42, 0)), False)
sketch8.addGeometry(Part.LineSegment(V(26, 42, 0), V(-26, 42, 0)), False)
sketch8.addGeometry(Part.LineSegment(V(-33, -24, 0), V(-33, 24, 0)), False)
sketch8.addGeometry(Part.LineSegment(V(-33, 24, 0), V(-40, 28, 0)), False)
sketch8.addGeometry(Part.LineSegment(V(-40, 28, 0), V(-40, -28, 0)), False)
sketch8.addGeometry(Part.LineSegment(V(-40, -28, 0), V(-33, -24, 0)), False)
sketch8.addConstraint(Sketcher.Constraint("Coincident", 0, 2, 1, 1))
sketch8.addConstraint(Sketcher.Constraint("Coincident", 1, 2, 2, 1))
sketch8.addConstraint(Sketcher.Constraint("Coincident", 2, 2, 3, 1))
sketch8.addConstraint(Sketcher.Constraint("Coincident", 3, 2, 0, 1))
sketch8.addConstraint(Sketcher.Constraint("Coincident", 4, 2, 5, 1))
sketch8.addConstraint(Sketcher.Constraint("Coincident", 5, 2, 6, 1))
sketch8.addConstraint(Sketcher.Constraint("Coincident", 6, 2, 7, 1))
sketch8.addConstraint(Sketcher.Constraint("Coincident", 7, 2, 4, 1))
sketch8.addConstraint(Sketcher.Constraint("Coincident", 8, 2, 9, 1))
sketch8.addConstraint(Sketcher.Constraint("Coincident", 9, 2, 10, 1))
sketch8.addConstraint(Sketcher.Constraint("Coincident", 10, 2, 11, 1))
sketch8.addConstraint(Sketcher.Constraint("Coincident", 11, 2, 8, 1))
sketch8.addConstraint(Sketcher.Constraint("Coincident", 12, 2, 13, 1))
sketch8.addConstraint(Sketcher.Constraint("Coincident", 13, 2, 14, 1))
sketch8.addConstraint(Sketcher.Constraint("Coincident", 14, 2, 15, 1))
sketch8.addConstraint(Sketcher.Constraint("Coincident", 15, 2, 12, 1))
sketch8.addConstraint(Sketcher.Constraint("Horizontal", 0))
sketch8.addConstraint(Sketcher.Constraint("Horizontal", 2))
sketch8.addConstraint(Sketcher.Constraint("Vertical", 5))
sketch8.addConstraint(Sketcher.Constraint("Horizontal", 9))
sketch8.addConstraint(Sketcher.Constraint("Horizontal", 11))
sketch8.addConstraint(Sketcher.Constraint("Vertical", 12))
sketch8.addConstraint(Sketcher.Constraint("Vertical", 14))
sketch8.addConstraint(Sketcher.Constraint("Symmetric", 1, 2, 8, 2, -1, 1))
sketch8.addConstraint(Sketcher.Constraint("Symmetric", 3, 2, 10, 2, -1, 1))
sketch8.addConstraint(Sketcher.Constraint("Symmetric", 4, 2, 13, 2, -1, 1))
sketch8.addConstraint(Sketcher.Constraint("Symmetric", 6, 2, 15, 2, -1, 1))
sketch8.addConstraint(Sketcher.Constraint("Parallel", 1, 8))
sketch8.addConstraint(Sketcher.Constraint("Parallel", 3, 10))
sketch8.addConstraint(Sketcher.Constraint("Parallel", 4, 13))
sketch8.addConstraint(Sketcher.Constraint("Parallel", 6, 15))
sketch8.addConstraint(Sketcher.Constraint("Horizontal", 6, 2, 12, 2))
sketch8.addConstraint(Sketcher.Constraint("Horizontal", 5, 2, 13, 2))
sketch8.addConstraint(Sketcher.Constraint("Vertical", 2, 2, 8, 2))
sketch8.addConstraint(Sketcher.Constraint("Vertical", 0, 2, 10, 2))
sketch8.addConstraint(Sketcher.Constraint("DistanceY", 5, 1, 5, 2, Q("2.187 in")))
sketch8.addConstraint(Sketcher.Constraint("DistanceY", 12, 1, 12, 2, Q("1.887 in")))
sketch8.addConstraint(Sketcher.Constraint("DistanceX", 1, 2, 0, 2, Q("0.15 in")))
sketch8.addConstraint(Sketcher.Constraint("DistanceX", 0, 1, 0, 2, 53.0))
sketch8.addConstraint(Sketcher.Constraint("DistanceY", 0, 2, -1, 1, 42.5))
sketch8.addConstraint(Sketcher.Constraint("DistanceX", -1, 1, 4, 2, 40.0))
sketch8.addConstraint(Sketcher.Constraint("DistanceX", -1, 1, 6, 2, 33.25))
sketch8.addConstraint(Sketcher.Constraint("DistanceY", 2, 2, 8, 2, 70.2749))
sketch8.addConstraint(Sketcher.Constraint("Distance", 7, 47.974879))
pocket5 = body.newObject("PartDesign::Pocket", "Pocket004")
pocket5.Profile = sketch8
pocket5.Length = Q("3 in")
pocket5.Midplane = True

sketch9 = body.newObject("Sketcher::SketchObject", "Sketch008")
sketch9.AttachmentSupport = (doc.getObject("XY_Plane"), [""])
sketch9.MapMode = "FlatFace"
sketch9.addGeometry(Part.Circle(V(-29.2, -31.8, 0), V(0, 0, 1), 6.3), False)
sketch9.addGeometry(Part.Circle(V(-29.2, -31.8, 0), V(0, 0, 1), 3.8), False)
sketch9.addGeometry(Part.Circle(V(29.2, -31.8, 0), V(0, 0, 1), 6.3), False)
sketch9.addGeometry(Part.Circle(V(29.2, -31.8, 0), V(0, 0, 1), 3.8), False)
sketch9.addGeometry(Part.Circle(V(29.2, 31.8, 0), V(0, 0, 1), 6.3), False)
sketch9.addGeometry(Part.Circle(V(29.2, 31.8, 0), V(0, 0, 1), 3.8), False)
sketch9.addGeometry(Part.Circle(V(-29.2, 31.8, 0), V(0, 0, 1), 6.3), False)
sketch9.addGeometry(Part.Circle(V(-29.2, 31.8, 0), V(0, 0, 1), 3.8), False)
sketch9.addConstraint(Sketcher.Constraint("Coincident", 1, 3, 0, 3))
sketch9.addConstraint(Sketcher.Constraint("Coincident", 3, 3, 2, 3))
sketch9.addConstraint(Sketcher.Constraint("Coincident", 5, 3, 4, 3))
sketch9.addConstraint(Sketcher.Constraint("Coincident", 7, 3, 6, 3))
sketch9.addConstraint(Sketcher.Constraint("Equal", 0, 2))
sketch9.addConstraint(Sketcher.Constraint("Equal", 1, 3))
sketch9.addConstraint(Sketcher.Constraint("Equal", 2, 4))
sketch9.addConstraint(Sketcher.Constraint("Equal", 3, 5))
sketch9.addConstraint(Sketcher.Constraint("Equal", 4, 6))
sketch9.addConstraint(Sketcher.Constraint("Equal", 5, 7))
sketch9.addConstraint(Sketcher.Constraint("Symmetric", 0, 3, 4, 3, -1, 1))
sketch9.addConstraint(Sketcher.Constraint("Symmetric", 2, 3, 6, 3, -1, 1))
sketch9.addConstraint(Sketcher.Constraint("Symmetric", 0, 3, 2, 3, -2))
sketch9.addConstraint(Sketcher.Constraint("Diameter", 0, Q("0.5 in")))
sketch9.addConstraint(Sketcher.Constraint("Diameter", 1, Q("0.3 in")))
sketch9.addConstraint(Sketcher.Constraint("DistanceX", 0, 3, 2, 3, Q("2.3 in")))
sketch9.addConstraint(Sketcher.Constraint("DistanceY", 2, 3, 4, 3, Q("2.5 in")))
pocket6 = body.newObject("PartDesign::Pocket", "Pocket005")
pocket6.Profile = sketch9
pocket6.Length = Q("0.25 in")
pocket6.Reversed = True

sketch10 = body.newObject("Sketcher::SketchObject", "Sketch009")
sketch10.AttachmentSupport = (doc.getObject("XY_Plane"), [""])
sketch10.MapMode = "FlatFace"
sketch10.AttachmentOffset = App.Placement(V(0, 0, 0.5 * 25.4), App.Rotation())
sketch10.addGeometry(Part.LineSegment(V(23, -35, 0), V(-23, -35, 0)), False)
sketch10.addGeometry(Part.LineSegment(V(-23, -35, 0), V(-18, -42, 0)), False)
sketch10.addGeometry(Part.LineSegment(V(-18, -42, 0), V(18, -42, 0)), False)
sketch10.addGeometry(Part.LineSegment(V(18, -42, 0), V(23, -35, 0)), False)
sketch10.addGeometry(Part.LineSegment(V(-18, 42, 0), V(-23, 35, 0)), False)
sketch10.addGeometry(Part.LineSegment(V(-23, 35, 0), V(23, 35, 0)), False)
sketch10.addGeometry(Part.LineSegment(V(23, 35, 0), V(18, 42, 0)), False)
sketch10.addGeometry(Part.LineSegment(V(18, 42, 0), V(-18, 42, 0)), False)
sketch10.addConstraint(Sketcher.Constraint("Coincident", 0, 2, 1, 1))
sketch10.addConstraint(Sketcher.Constraint("Coincident", 1, 2, 2, 1))
sketch10.addConstraint(Sketcher.Constraint("Coincident", 2, 2, 3, 1))
sketch10.addConstraint(Sketcher.Constraint("Coincident", 3, 2, 0, 1))
sketch10.addConstraint(Sketcher.Constraint("Coincident", 4, 2, 5, 1))
sketch10.addConstraint(Sketcher.Constraint("Coincident", 5, 2, 6, 1))
sketch10.addConstraint(Sketcher.Constraint("Coincident", 6, 2, 7, 1))
sketch10.addConstraint(Sketcher.Constraint("Coincident", 7, 2, 4, 1))
sketch10.addConstraint(Sketcher.Constraint("Horizontal", 0))
sketch10.addConstraint(Sketcher.Constraint("Horizontal", 2))
sketch10.addConstraint(Sketcher.Constraint("Horizontal", 5))
sketch10.addConstraint(Sketcher.Constraint("Horizontal", 7))
sketch10.addConstraint(Sketcher.Constraint("Symmetric", 3, 2, 4, 2, -1, 1))
sketch10.addConstraint(Sketcher.Constraint("Symmetric", 1, 2, 6, 2, -1, 1))
sketch10.addConstraint(Sketcher.Constraint("Parallel", 3, 4))
sketch10.addConstraint(Sketcher.Constraint("Parallel", 1, 6))
sketch10.addConstraint(Sketcher.Constraint("Vertical", 0, 2, 4, 2))
sketch10.addConstraint(Sketcher.Constraint("Vertical", 2, 2, 6, 2))
sketch10.addConstraint(Sketcher.Constraint("Distance", 1, Q("0.35 in")))
sketch10.addConstraint(Sketcher.Constraint("DistanceX", 0, 2, 0, 1, 45.38))
sketch10.addConstraint(Sketcher.Constraint("DistanceX", 2, 1, 2, 2, 35.41507))
sketch10.addConstraint(Sketcher.Constraint("DistanceY", 1, 2, -1, 1, 42.5))
pad4 = body.newObject("PartDesign::Pad", "Pad003")
pad4.Profile = sketch10
pad4.Length = Q("1.15 in")
pad4.Reversed = True

sketch11 = body.newObject("Sketcher::SketchObject", "Sketch010")
sketch11.AttachmentSupport = (doc.getObject("XY_Plane"), [""])
sketch11.MapMode = "FlatFace"
sketch11.AttachmentOffset = App.Placement(V(0, 0, -0.65 * 25.4), App.Rotation())
sketch11.addGeometry(Part.LineSegment(V(18, -42, 0), V(-18, -42, 0)), False)
sketch11.addGeometry(Part.LineSegment(V(-18, -42, 0), V(-9, -39, 0)), False)
sketch11.addGeometry(Part.LineSegment(V(-9, -39, 0), V(9, -39, 0)), False)
sketch11.addGeometry(Part.LineSegment(V(9, -39, 0), V(18, -42, 0)), False)
sketch11.addConstraint(Sketcher.Constraint("Coincident", 0, 2, 1, 1))
sketch11.addConstraint(Sketcher.Constraint("Coincident", 1, 2, 2, 1))
sketch11.addConstraint(Sketcher.Constraint("Coincident", 2, 2, 3, 1))
sketch11.addConstraint(Sketcher.Constraint("Coincident", 3, 2, 0, 1))
sketch11.addConstraint(Sketcher.Constraint("Horizontal", 0))
sketch11.addConstraint(Sketcher.Constraint("Horizontal", 2))
sketch11.addConstraint(Sketcher.Constraint("Equal", 1, 3))
sketch11.addConstraint(Sketcher.Constraint("DistanceX", 0, 2, 0, 1, 35.41507))
sketch11.addConstraint(Sketcher.Constraint("DistanceY", 0, 2, -1, 1, 42.5))
sketch11.addConstraint(Sketcher.Constraint("DistanceX", 2, 1, 2, 2, 17.707535))
sketch11.addConstraint(Sketcher.Constraint("Distance", 1, 9.588586))
sketch11.addConstraint(Sketcher.Constraint("DistanceX", 0, 2, -1, 1, 17.707535))
pocket7 = body.newObject("PartDesign::Pocket", "Pocket006")
pocket7.Profile = sketch11
pocket7.Length = Q("1 in")
pocket7.Reversed = True

doc.recompute()
